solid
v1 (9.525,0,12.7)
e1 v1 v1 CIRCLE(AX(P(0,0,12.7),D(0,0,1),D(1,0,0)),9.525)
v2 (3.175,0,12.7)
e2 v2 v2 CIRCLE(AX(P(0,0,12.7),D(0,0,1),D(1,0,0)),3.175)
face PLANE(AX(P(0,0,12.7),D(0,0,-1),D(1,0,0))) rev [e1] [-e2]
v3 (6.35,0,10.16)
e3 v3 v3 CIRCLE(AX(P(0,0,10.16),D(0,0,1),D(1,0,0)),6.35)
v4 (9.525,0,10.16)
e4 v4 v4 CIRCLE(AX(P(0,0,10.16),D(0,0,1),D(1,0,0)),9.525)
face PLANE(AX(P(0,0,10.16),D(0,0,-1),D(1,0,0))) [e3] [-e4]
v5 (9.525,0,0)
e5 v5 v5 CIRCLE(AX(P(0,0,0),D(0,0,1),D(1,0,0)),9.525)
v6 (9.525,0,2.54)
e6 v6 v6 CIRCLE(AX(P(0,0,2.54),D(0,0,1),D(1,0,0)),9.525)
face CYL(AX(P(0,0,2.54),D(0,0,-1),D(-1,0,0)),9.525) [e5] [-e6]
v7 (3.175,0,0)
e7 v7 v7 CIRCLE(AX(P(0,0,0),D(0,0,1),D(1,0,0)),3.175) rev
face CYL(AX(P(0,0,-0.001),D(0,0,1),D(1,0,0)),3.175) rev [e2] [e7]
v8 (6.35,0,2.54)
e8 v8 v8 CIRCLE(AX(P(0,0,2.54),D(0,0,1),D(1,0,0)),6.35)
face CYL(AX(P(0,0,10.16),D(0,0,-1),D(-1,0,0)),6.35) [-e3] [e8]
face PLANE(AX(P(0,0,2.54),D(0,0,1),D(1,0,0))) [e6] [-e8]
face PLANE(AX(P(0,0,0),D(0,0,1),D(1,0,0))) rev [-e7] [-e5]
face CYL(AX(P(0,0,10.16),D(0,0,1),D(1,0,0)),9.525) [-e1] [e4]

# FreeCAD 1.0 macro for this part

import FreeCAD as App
import Part
import Sketcher

V = App.Vector
Q = App.Units.Quantity

doc = App.newDocument("Part")
body = doc.addObject("PartDesign::Body", "Body")

sketch1 = body.newObject("Sketcher::SketchObject", "Sketch")
sketch1.AttachmentSupport = (doc.getObject("XY_Plane"), [""])
sketch1.MapMode = "FlatFace"
sketch1.addGeometry(Part.Circle(V(0, 0, 0), V(0, 0, 1), 10), False)
sketch1.addConstraint([
    Sketcher.Constraint("Coincident", 0, 3, -1, 1),
    Sketcher.Constraint("Diameter", 0, Q("0.75 in")),
])
pad1 = body.newObject("PartDesign::Pad", "Pad")
pad1.Profile = sketch1
pad1.Length = Q("0.1 in")

sketch2 = body.newObject("Sketcher::SketchObject", "Sketch001")
sketch2.AttachmentSupport = (doc.getObject("XY_Plane"), [""])
sketch2.MapMode = "FlatFace"
sketch2.AttachmentOffset = App.Placement(V(0, 0, 0.1 * 25.4), App.Rotation())
sketch2.addGeometry(Part.Circle(V(0, 0, 0), V(0, 0, 1), 6), False)
sketch2.addConstraint([
    Sketcher.Constraint("Coincident", 0, 3, -1, 1),
    Sketcher.Constraint("Diameter", 0, Q("0.5 in")),
])
pad2 = body.newObject("PartDesign::Pad", "Pad001")
pad2.Profile = sketch2
pad2.Length = Q("0.3 in")
doc.recompute()

datumplane = body.newObject("PartDesign::Plane", "DatumPlane")
datumplane.AttachmentSupport = (doc.getObject("XY_Plane"), [""])
datumplane.MapMode = "FlatFace"
datumplane.AttachmentOffset = App.Placement(V(0, 0, 0.25 * 25.4), App.Rotation())
mirrored = body.newObject("PartDesign::Mirrored", "Mirrored")
mirrored.Originals = [pad1]
mirrored.MirrorPlane = (datumplane, [""])
body.Tip = mirrored

sketch3 = body.newObject("Sketcher::SketchObject", "Sketch002")
sketch3.AttachmentSupport = (doc.getObject("XY_Plane"), [""])
sketch3.MapMode = "FlatFace"
sketch3.AttachmentOffset = App.Placement(V(0, 0, 0.5 * 25.4), App.Rotation())
sketch3.addGeometry(Part.Circle(V(0, 0, 0), V(0, 0, 1), 3.2), False)
sketch3.addConstraint([
    Sketcher.Constraint("Coincident", 0, 3, -1, 1),
    Sketcher.Constraint("Diameter", 0, Q("0.25 in")),
])
pocket1 = body.newObject("PartDesign::Pocket", "Pocket")
pocket1.Profile = sketch3
pocket1.Type = "UpToFirst"

doc.recompute()
